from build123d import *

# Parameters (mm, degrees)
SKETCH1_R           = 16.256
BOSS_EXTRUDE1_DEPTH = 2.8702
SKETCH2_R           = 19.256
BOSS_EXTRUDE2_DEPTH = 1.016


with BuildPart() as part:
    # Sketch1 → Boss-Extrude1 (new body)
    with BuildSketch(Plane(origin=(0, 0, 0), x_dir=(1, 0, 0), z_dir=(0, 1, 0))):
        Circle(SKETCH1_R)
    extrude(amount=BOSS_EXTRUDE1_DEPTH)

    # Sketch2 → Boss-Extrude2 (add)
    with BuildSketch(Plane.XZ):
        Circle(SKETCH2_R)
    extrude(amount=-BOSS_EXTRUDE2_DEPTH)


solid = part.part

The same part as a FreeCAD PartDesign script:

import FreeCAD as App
import Part
import Sketcher
from FreeCAD import Vector
Q = App.Units.Quantity

doc = App.newDocument("Part")
body = doc.addObject("PartDesign::Body", "Body")

# Sketch on XZ plane
sketch1 = body.newObject("Sketcher::SketchObject", "Sketch")
sketch1.AttachmentSupport = (doc.getObject("XZ_Plane"), [""])
sketch1.MapMode = "FlatFace"
sketch1.addGeometry(Part.Circle(Vector(0, 0, 0), Vector(0, 0, 1), 16.256), False)
sketch1.addConstraint([
    Sketcher.Constraint("Coincident", 0, 3, -1, 1),
    Sketcher.Constraint("Diameter", 0, Q("1.28 in")),
])
pad1 = body.newObject("PartDesign::Pad", "Pad")
pad1.Profile = sketch1
pad1.Length = Q("0.113 in")
pad1.Reversed = True

# Sketch on XZ plane
sketch2 = body.newObject("Sketcher::SketchObject", "Sketch001")
sketch2.AttachmentSupport = (doc.getObject("XZ_Plane"), [""])
sketch2.MapMode = "FlatFace"
sketch2.addGeometry(Part.Circle(Vector(0, 0, 0), Vector(0, 0, 1), 19.256), False)
sketch2.addConstraint([
    Sketcher.Constraint("Coincident", 0, 3, -1, 1),
    Sketcher.Constraint("Diameter", 0, Q("38.512 mm")),
])
pad2 = body.newObject("PartDesign::Pad", "Pad001")
pad2.Profile = sketch2
pad2.Length = Q("0.04 in")
pad2.Reversed = True

doc.recompute()
